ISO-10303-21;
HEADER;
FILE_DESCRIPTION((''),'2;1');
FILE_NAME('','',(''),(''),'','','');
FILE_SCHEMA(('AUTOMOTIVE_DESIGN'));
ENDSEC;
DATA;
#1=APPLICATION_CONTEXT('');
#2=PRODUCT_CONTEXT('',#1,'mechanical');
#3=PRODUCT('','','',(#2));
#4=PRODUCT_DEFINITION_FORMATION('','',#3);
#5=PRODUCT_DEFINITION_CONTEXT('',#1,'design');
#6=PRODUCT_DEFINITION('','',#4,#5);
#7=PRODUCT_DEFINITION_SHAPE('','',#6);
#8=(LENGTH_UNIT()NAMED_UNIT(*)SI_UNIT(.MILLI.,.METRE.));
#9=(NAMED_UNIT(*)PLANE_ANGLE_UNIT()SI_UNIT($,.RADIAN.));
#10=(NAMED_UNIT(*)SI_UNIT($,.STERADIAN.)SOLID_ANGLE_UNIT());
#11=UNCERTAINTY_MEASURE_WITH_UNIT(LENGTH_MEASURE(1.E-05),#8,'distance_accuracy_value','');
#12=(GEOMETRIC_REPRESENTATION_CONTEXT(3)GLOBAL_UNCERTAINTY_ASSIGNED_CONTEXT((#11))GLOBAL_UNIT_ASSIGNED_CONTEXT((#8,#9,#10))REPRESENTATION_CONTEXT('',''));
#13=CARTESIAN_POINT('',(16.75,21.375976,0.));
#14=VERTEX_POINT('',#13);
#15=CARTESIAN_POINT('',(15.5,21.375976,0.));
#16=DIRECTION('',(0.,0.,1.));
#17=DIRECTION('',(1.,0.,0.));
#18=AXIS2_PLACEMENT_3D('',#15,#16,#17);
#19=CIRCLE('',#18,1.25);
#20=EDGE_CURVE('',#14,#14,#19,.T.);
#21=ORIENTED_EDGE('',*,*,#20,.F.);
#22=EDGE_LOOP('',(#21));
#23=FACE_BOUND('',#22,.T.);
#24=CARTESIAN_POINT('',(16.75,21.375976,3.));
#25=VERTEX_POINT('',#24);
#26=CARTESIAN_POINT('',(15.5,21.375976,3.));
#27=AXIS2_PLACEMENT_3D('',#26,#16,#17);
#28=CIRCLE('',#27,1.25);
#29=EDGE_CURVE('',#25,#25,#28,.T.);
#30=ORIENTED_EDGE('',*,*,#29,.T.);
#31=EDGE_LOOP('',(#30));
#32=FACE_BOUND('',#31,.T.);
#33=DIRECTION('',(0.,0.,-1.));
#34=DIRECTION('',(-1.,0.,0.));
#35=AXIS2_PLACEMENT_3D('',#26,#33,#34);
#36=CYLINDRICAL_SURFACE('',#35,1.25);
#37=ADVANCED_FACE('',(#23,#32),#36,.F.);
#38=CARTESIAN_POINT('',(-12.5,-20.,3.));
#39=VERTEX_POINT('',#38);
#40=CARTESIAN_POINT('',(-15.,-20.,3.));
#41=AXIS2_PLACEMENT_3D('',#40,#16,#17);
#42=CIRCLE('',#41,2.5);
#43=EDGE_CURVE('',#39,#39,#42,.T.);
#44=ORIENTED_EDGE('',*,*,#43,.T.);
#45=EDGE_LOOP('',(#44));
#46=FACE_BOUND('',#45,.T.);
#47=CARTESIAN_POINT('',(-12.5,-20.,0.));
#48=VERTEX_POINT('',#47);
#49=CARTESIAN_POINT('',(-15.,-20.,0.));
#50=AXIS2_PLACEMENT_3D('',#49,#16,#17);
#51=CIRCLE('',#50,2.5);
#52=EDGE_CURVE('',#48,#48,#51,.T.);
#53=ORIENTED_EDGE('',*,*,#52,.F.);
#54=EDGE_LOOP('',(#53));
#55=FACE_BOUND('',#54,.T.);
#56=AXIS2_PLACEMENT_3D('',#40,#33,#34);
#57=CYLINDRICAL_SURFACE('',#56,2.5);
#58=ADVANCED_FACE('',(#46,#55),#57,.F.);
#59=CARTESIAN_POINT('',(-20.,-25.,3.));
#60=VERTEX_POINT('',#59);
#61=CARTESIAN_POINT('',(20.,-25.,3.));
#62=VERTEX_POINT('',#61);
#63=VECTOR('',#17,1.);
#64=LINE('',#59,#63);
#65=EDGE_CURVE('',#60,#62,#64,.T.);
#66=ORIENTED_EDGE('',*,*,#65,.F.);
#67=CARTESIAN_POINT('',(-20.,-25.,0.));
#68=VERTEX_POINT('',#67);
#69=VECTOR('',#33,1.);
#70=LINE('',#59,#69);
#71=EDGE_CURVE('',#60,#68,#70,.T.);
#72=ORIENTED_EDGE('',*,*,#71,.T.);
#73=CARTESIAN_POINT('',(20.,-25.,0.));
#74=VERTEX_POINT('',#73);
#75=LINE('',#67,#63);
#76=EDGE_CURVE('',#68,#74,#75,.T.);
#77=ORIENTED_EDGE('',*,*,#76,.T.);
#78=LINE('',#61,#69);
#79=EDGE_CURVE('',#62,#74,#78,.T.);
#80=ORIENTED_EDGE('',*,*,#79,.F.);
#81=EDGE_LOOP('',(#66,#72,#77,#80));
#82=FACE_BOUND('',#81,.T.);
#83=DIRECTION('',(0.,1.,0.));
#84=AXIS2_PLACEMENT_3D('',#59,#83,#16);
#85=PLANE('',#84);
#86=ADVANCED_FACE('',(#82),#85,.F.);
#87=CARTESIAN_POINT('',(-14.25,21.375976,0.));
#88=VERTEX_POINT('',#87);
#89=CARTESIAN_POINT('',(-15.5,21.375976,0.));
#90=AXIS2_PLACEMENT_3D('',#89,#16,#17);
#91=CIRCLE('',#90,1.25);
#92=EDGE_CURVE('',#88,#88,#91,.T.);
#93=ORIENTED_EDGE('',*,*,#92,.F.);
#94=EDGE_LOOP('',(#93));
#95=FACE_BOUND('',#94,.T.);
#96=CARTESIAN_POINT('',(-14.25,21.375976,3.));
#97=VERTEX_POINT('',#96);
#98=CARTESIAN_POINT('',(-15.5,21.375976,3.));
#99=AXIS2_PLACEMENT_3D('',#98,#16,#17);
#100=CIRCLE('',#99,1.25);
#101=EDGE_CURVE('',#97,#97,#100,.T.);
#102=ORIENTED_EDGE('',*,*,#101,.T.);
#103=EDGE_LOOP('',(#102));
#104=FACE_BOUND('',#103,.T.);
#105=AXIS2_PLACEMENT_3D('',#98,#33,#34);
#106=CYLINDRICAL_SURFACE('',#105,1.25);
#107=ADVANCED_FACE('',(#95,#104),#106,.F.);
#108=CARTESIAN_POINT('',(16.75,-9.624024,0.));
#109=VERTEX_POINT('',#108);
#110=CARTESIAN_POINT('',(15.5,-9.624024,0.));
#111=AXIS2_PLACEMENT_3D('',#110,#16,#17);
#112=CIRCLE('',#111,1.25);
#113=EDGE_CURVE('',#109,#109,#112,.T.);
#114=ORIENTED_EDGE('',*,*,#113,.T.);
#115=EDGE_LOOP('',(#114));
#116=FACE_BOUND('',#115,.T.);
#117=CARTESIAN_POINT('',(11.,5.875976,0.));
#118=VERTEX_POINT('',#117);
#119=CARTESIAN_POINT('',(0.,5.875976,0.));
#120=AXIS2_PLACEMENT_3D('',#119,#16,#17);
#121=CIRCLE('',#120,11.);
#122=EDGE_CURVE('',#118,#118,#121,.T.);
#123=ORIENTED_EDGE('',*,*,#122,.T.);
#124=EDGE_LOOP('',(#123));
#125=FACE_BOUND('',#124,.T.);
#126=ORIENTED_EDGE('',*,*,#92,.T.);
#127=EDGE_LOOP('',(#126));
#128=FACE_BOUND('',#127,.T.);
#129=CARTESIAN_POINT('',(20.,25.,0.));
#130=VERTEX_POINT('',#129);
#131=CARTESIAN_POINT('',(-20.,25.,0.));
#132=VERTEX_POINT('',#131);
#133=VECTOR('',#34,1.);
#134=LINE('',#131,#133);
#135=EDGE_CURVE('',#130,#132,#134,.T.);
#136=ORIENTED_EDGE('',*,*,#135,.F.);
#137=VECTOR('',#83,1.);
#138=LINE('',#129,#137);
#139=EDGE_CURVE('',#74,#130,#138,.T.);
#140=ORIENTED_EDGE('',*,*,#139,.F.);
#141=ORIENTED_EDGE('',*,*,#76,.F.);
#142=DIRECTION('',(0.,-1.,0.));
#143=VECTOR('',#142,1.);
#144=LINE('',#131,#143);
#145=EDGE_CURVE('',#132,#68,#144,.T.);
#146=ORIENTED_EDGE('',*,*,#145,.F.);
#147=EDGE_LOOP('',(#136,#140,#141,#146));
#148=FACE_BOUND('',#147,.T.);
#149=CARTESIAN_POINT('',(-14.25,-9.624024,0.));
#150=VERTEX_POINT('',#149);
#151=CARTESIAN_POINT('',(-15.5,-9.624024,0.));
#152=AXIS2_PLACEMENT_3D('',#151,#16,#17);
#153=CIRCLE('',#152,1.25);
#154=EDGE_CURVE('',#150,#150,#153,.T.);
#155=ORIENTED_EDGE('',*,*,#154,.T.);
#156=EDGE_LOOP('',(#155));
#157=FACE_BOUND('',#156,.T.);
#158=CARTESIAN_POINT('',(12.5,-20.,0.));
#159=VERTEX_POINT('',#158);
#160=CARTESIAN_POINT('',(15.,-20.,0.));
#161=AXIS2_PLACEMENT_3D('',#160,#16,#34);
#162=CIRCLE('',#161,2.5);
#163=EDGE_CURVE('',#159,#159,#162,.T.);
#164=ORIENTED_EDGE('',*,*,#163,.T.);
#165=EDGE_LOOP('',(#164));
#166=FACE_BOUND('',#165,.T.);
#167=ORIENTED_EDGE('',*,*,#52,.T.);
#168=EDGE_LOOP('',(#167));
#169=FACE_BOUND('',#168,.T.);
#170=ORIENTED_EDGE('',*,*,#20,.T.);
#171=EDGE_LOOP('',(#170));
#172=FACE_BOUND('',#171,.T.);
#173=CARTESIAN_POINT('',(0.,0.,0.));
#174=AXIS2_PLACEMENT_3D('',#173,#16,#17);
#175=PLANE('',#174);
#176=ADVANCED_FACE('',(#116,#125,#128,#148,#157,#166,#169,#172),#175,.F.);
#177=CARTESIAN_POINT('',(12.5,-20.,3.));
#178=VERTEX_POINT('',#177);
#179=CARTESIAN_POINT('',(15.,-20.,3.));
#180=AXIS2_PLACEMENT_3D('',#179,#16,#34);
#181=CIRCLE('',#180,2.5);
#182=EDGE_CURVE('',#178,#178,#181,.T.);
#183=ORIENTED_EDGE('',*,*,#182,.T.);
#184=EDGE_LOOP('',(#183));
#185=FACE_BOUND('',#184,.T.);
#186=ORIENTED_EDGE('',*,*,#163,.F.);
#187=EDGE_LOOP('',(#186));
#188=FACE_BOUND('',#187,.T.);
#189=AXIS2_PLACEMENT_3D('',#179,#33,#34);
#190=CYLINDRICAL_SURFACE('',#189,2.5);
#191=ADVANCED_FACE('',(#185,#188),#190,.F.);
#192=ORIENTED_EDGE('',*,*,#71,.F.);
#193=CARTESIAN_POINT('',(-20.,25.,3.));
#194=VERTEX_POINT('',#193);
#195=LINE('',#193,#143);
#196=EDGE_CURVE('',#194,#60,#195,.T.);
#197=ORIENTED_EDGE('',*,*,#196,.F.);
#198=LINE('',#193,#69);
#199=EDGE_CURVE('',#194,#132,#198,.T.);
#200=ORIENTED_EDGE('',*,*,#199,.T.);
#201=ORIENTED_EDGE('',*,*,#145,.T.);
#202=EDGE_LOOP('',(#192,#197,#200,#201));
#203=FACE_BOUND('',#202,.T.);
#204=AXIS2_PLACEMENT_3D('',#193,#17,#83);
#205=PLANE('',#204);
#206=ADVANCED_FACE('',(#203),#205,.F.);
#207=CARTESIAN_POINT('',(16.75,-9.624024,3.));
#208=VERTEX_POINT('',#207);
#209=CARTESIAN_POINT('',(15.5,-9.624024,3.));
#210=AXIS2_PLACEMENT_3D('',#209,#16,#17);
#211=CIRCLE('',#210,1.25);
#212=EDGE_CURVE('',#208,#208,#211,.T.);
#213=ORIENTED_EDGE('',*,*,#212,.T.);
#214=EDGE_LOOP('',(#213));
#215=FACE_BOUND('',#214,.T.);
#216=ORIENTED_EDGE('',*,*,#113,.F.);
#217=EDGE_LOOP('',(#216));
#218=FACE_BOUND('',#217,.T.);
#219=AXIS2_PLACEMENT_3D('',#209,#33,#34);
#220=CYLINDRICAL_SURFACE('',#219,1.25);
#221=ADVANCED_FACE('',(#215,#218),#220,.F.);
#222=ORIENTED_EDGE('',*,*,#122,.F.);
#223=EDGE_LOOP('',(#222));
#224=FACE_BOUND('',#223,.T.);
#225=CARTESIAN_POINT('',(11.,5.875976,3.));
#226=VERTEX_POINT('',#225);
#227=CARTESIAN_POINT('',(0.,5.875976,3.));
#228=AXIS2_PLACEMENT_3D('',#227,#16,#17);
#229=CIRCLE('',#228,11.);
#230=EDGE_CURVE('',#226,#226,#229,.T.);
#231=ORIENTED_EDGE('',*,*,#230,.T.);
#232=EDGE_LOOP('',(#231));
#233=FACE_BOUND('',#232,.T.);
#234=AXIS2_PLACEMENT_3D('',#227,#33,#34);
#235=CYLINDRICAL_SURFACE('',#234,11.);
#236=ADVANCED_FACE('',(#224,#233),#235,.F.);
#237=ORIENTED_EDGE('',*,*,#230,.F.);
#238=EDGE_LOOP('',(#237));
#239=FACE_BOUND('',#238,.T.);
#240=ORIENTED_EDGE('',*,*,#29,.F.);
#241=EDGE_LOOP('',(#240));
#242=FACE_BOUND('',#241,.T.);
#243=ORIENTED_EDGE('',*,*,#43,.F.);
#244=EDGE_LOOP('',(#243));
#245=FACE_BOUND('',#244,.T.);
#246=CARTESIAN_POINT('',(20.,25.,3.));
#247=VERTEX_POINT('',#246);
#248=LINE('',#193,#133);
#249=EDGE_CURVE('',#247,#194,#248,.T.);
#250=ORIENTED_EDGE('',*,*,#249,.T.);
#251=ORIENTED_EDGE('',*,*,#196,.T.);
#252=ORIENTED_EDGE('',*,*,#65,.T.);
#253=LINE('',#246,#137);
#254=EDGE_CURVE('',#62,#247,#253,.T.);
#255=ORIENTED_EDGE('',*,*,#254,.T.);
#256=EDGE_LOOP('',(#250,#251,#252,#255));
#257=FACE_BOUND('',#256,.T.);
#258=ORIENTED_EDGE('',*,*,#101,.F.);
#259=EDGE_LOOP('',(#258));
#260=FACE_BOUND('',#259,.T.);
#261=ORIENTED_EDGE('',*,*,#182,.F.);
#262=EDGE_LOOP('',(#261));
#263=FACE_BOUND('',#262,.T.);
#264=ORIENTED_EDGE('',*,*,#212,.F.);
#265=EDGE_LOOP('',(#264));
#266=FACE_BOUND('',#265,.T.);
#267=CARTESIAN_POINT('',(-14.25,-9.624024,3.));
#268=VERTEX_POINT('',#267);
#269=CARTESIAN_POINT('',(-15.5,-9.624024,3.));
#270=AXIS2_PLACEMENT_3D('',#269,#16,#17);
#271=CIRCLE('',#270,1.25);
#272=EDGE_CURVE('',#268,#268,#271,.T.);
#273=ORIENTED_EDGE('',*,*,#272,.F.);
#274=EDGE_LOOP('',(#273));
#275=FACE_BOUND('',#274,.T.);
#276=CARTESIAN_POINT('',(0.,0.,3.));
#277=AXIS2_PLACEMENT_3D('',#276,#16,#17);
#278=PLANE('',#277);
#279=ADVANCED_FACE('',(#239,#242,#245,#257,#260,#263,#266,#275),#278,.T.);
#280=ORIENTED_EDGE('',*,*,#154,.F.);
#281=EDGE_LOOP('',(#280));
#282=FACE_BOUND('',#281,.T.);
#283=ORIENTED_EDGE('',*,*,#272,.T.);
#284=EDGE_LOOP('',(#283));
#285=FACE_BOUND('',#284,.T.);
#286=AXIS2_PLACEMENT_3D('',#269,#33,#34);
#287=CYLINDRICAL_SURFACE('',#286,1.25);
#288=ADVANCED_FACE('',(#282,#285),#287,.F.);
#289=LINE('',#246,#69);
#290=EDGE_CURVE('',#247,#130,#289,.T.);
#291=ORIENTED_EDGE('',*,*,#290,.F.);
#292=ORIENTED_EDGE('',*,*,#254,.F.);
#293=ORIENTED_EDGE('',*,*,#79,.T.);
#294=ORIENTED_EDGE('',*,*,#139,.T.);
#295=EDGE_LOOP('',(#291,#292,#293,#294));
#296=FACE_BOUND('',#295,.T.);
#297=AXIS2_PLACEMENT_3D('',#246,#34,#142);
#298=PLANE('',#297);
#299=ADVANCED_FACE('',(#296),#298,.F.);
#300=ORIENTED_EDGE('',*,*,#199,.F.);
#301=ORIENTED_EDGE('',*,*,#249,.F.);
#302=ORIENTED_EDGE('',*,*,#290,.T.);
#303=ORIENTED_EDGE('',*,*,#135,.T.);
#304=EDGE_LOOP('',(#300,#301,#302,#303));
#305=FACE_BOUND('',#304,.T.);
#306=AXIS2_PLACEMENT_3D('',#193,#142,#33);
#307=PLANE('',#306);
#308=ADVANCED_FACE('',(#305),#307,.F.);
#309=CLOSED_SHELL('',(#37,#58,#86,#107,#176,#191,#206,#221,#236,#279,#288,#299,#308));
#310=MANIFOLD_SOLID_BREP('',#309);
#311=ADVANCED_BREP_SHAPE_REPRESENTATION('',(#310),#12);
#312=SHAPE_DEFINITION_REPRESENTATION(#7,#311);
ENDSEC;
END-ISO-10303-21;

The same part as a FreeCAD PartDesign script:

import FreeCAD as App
import Part
import Sketcher
from FreeCAD import Vector
Q = App.Units.Quantity

doc = App.newDocument("Part")
body = doc.addObject("PartDesign::Body", "Body")

sketch1 = body.newObject("Sketcher::SketchObject", "Sketch")
sketch1.AttachmentSupport = (doc.getObject("XY_Plane"), [""])
sketch1.MapMode = "FlatFace"
sketch1.addGeometry(Part.LineSegment(Vector(-20, 25, 0), Vector(-20, -25, 0)), False)
sketch1.addGeometry(Part.LineSegment(Vector(-20, -25, 0), Vector(20, -25, 0)), False)
sketch1.addGeometry(Part.LineSegment(Vector(20, -25, 0), Vector(20, 25, 0)), False)
sketch1.addGeometry(Part.LineSegment(Vector(20, 25, 0), Vector(-20, 25, 0)), False)
sketch1.addGeometry(Part.Circle(Vector(-15, -20, 0), Vector(0, 0, 1), 2.5), False)
sketch1.addGeometry(Part.Circle(Vector(-15.5, -9.6, 0), Vector(0, 0, 1), 1.2), False)
sketch1.addGeometry(Part.Circle(Vector(15, -20, 0), Vector(0, 0, 1), 2.5), False)
sketch1.addGeometry(Part.Circle(Vector(15.5, -9.6, 0), Vector(0, 0, 1), 1.2), False)
sketch1.addGeometry(Part.Circle(Vector(-15.5, 21.4, 0), Vector(0, 0, 1), 1.2), False)
sketch1.addGeometry(Part.Circle(Vector(0, 5.9, 0), Vector(0, 0, 1), 11), False)
sketch1.addGeometry(Part.Circle(Vector(15.5, 21.4, 0), Vector(0, 0, 1), 1.2), False)
sketch1.addConstraint(Sketcher.Constraint("Coincident", 0, 2, 1, 1))
sketch1.addConstraint(Sketcher.Constraint("Coincident", 1, 2, 2, 1))
sketch1.addConstraint(Sketcher.Constraint("Coincident", 2, 2, 3, 1))
sketch1.addConstraint(Sketcher.Constraint("Coincident", 3, 2, 0, 1))
sketch1.addConstraint(Sketcher.Constraint("Vertical", 0))
sketch1.addConstraint(Sketcher.Constraint("Horizontal", 1))
sketch1.addConstraint(Sketcher.Constraint("Vertical", 2))
sketch1.addConstraint(Sketcher.Constraint("Horizontal", 3))
sketch1.addConstraint(Sketcher.Constraint("Equal", 4, 6))
sketch1.addConstraint(Sketcher.Constraint("Equal", 5, 7))
sketch1.addConstraint(Sketcher.Constraint("Equal", 7, 8))
sketch1.addConstraint(Sketcher.Constraint("Equal", 8, 10))
sketch1.addConstraint(Sketcher.Constraint("Symmetric", 0, 2, 2, 2, -1, 1))
sketch1.addConstraint(Sketcher.Constraint("Symmetric", 4, 3, 6, 3, -2))
sketch1.addConstraint(Sketcher.Constraint("Symmetric", 5, 3, 7, 3, -2))
sketch1.addConstraint(Sketcher.Constraint("Symmetric", 8, 3, 10, 3, -2))
sketch1.addConstraint(Sketcher.Constraint("PointOnObject", 9, 3, -2))
sketch1.addConstraint(Sketcher.Constraint("Vertical", 5, 3, 8, 3))
sketch1.addConstraint(Sketcher.Constraint("Diameter", 4, Q("5 mm")))
sketch1.addConstraint(Sketcher.Constraint("Diameter", 9, Q("22 mm")))
sketch1.addConstraint(Sketcher.Constraint("Diameter", 5, Q("2.5 mm")))
sketch1.addConstraint(Sketcher.Constraint("DistanceX", 1, 1, 1, 2, Q("40 mm")))
sketch1.addConstraint(Sketcher.Constraint("DistanceY", 0, 2, 0, 1, Q("50 mm")))
sketch1.addConstraint(Sketcher.Constraint("DistanceX", 4, 3, -1, 1, Q("15 mm")))
sketch1.addConstraint(Sketcher.Constraint("DistanceY", 4, 3, -1, 1, Q("20 mm")))
sketch1.addConstraint(Sketcher.Constraint("DistanceX", 5, 3, 7, 3, Q("31 mm")))
sketch1.addConstraint(Sketcher.Constraint("DistanceY", 5, 3, 8, 3, Q("31 mm")))
sketch1.addConstraint(Sketcher.Constraint("DistanceY", 5, 3, 9, 3, Q("15.5 mm")))
sketch1.addConstraint(Sketcher.Constraint("DistanceY", 5, 3, -1, 1, Q("9.624024 mm")))
pad1 = body.newObject("PartDesign::Pad", "Pad")
pad1.Profile = sketch1
pad1.Length = 3

doc.recompute()
